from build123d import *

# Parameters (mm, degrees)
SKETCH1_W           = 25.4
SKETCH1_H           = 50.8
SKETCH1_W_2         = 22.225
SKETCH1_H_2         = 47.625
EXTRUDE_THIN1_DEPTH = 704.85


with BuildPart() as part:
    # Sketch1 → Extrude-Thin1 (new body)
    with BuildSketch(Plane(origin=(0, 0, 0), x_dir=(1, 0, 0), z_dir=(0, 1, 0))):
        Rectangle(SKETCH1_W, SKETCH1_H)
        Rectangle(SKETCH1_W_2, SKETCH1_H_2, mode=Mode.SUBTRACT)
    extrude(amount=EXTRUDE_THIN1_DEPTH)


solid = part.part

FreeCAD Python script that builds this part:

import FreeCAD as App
import Part
import Sketcher
Q = App.Units.Quantity


def add_polygon(sketch, points):
    """Adds a closed chain of lines whose ends are joined by coincident constraints."""
    first, n = sketch.GeometryCount, len(points)
    for a, b in zip(points, points[1:] + points[:1]):
        sketch.addGeometry(Part.LineSegment(App.Vector(*a, 0), App.Vector(*b, 0)), False)
    for i in range(n):
        sketch.addConstraint(Sketcher.Constraint("Coincident", first + i, 2, first + (i + 1) % n, 1))

doc = App.newDocument("Part")
body = doc.addObject("PartDesign::Body", "Body")

sketch1 = body.newObject("Sketcher::SketchObject", "Sketch")
sketch1.AttachmentSupport = (doc.getObject("XZ_Plane"), [""])
sketch1.MapMode = "FlatFace"
add_polygon(sketch1, [(-13, -25), (-13, 25), (13, 25), (13, -25)])
add_polygon(sketch1, [(11, 24), (-11, 24), (-11, -24), (11, -24)])
sketch1.addConstraint(Sketcher.Constraint("Vertical", 0))
sketch1.addConstraint(Sketcher.Constraint("Horizontal", 1))
sketch1.addConstraint(Sketcher.Constraint("Vertical", 2))
sketch1.addConstraint(Sketcher.Constraint("Horizontal", 3))
sketch1.addConstraint(Sketcher.Constraint("Horizontal", 4))
sketch1.addConstraint(Sketcher.Constraint("Vertical", 5))
sketch1.addConstraint(Sketcher.Constraint("Horizontal", 6))
sketch1.addConstraint(Sketcher.Constraint("Vertical", 7))
sketch1.addConstraint(Sketcher.Constraint("Symmetric", 0, 2, 2, 2, -1, 1))
sketch1.addConstraint(Sketcher.Constraint("Symmetric", 4, 2, 6, 2, -1, 1))
sketch1.addConstraint(Sketcher.Constraint("DistanceX", 1, 1, 1, 2, Q("1 in")))
sketch1.addConstraint(Sketcher.Constraint("DistanceY", 0, 1, 0, 2, Q("2 in")))
sketch1.addConstraint(Sketcher.Constraint("DistanceX", 4, 2, 4, 1, Q("0.875 in")))
sketch1.addConstraint(Sketcher.Constraint("DistanceY", 5, 2, 5, 1, Q("1.875 in")))
pad1 = body.newObject("PartDesign::Pad", "Pad")
pad1.Profile = sketch1
pad1.Length = Q("27.75 in")
pad1.Reversed = True

doc.recompute()
